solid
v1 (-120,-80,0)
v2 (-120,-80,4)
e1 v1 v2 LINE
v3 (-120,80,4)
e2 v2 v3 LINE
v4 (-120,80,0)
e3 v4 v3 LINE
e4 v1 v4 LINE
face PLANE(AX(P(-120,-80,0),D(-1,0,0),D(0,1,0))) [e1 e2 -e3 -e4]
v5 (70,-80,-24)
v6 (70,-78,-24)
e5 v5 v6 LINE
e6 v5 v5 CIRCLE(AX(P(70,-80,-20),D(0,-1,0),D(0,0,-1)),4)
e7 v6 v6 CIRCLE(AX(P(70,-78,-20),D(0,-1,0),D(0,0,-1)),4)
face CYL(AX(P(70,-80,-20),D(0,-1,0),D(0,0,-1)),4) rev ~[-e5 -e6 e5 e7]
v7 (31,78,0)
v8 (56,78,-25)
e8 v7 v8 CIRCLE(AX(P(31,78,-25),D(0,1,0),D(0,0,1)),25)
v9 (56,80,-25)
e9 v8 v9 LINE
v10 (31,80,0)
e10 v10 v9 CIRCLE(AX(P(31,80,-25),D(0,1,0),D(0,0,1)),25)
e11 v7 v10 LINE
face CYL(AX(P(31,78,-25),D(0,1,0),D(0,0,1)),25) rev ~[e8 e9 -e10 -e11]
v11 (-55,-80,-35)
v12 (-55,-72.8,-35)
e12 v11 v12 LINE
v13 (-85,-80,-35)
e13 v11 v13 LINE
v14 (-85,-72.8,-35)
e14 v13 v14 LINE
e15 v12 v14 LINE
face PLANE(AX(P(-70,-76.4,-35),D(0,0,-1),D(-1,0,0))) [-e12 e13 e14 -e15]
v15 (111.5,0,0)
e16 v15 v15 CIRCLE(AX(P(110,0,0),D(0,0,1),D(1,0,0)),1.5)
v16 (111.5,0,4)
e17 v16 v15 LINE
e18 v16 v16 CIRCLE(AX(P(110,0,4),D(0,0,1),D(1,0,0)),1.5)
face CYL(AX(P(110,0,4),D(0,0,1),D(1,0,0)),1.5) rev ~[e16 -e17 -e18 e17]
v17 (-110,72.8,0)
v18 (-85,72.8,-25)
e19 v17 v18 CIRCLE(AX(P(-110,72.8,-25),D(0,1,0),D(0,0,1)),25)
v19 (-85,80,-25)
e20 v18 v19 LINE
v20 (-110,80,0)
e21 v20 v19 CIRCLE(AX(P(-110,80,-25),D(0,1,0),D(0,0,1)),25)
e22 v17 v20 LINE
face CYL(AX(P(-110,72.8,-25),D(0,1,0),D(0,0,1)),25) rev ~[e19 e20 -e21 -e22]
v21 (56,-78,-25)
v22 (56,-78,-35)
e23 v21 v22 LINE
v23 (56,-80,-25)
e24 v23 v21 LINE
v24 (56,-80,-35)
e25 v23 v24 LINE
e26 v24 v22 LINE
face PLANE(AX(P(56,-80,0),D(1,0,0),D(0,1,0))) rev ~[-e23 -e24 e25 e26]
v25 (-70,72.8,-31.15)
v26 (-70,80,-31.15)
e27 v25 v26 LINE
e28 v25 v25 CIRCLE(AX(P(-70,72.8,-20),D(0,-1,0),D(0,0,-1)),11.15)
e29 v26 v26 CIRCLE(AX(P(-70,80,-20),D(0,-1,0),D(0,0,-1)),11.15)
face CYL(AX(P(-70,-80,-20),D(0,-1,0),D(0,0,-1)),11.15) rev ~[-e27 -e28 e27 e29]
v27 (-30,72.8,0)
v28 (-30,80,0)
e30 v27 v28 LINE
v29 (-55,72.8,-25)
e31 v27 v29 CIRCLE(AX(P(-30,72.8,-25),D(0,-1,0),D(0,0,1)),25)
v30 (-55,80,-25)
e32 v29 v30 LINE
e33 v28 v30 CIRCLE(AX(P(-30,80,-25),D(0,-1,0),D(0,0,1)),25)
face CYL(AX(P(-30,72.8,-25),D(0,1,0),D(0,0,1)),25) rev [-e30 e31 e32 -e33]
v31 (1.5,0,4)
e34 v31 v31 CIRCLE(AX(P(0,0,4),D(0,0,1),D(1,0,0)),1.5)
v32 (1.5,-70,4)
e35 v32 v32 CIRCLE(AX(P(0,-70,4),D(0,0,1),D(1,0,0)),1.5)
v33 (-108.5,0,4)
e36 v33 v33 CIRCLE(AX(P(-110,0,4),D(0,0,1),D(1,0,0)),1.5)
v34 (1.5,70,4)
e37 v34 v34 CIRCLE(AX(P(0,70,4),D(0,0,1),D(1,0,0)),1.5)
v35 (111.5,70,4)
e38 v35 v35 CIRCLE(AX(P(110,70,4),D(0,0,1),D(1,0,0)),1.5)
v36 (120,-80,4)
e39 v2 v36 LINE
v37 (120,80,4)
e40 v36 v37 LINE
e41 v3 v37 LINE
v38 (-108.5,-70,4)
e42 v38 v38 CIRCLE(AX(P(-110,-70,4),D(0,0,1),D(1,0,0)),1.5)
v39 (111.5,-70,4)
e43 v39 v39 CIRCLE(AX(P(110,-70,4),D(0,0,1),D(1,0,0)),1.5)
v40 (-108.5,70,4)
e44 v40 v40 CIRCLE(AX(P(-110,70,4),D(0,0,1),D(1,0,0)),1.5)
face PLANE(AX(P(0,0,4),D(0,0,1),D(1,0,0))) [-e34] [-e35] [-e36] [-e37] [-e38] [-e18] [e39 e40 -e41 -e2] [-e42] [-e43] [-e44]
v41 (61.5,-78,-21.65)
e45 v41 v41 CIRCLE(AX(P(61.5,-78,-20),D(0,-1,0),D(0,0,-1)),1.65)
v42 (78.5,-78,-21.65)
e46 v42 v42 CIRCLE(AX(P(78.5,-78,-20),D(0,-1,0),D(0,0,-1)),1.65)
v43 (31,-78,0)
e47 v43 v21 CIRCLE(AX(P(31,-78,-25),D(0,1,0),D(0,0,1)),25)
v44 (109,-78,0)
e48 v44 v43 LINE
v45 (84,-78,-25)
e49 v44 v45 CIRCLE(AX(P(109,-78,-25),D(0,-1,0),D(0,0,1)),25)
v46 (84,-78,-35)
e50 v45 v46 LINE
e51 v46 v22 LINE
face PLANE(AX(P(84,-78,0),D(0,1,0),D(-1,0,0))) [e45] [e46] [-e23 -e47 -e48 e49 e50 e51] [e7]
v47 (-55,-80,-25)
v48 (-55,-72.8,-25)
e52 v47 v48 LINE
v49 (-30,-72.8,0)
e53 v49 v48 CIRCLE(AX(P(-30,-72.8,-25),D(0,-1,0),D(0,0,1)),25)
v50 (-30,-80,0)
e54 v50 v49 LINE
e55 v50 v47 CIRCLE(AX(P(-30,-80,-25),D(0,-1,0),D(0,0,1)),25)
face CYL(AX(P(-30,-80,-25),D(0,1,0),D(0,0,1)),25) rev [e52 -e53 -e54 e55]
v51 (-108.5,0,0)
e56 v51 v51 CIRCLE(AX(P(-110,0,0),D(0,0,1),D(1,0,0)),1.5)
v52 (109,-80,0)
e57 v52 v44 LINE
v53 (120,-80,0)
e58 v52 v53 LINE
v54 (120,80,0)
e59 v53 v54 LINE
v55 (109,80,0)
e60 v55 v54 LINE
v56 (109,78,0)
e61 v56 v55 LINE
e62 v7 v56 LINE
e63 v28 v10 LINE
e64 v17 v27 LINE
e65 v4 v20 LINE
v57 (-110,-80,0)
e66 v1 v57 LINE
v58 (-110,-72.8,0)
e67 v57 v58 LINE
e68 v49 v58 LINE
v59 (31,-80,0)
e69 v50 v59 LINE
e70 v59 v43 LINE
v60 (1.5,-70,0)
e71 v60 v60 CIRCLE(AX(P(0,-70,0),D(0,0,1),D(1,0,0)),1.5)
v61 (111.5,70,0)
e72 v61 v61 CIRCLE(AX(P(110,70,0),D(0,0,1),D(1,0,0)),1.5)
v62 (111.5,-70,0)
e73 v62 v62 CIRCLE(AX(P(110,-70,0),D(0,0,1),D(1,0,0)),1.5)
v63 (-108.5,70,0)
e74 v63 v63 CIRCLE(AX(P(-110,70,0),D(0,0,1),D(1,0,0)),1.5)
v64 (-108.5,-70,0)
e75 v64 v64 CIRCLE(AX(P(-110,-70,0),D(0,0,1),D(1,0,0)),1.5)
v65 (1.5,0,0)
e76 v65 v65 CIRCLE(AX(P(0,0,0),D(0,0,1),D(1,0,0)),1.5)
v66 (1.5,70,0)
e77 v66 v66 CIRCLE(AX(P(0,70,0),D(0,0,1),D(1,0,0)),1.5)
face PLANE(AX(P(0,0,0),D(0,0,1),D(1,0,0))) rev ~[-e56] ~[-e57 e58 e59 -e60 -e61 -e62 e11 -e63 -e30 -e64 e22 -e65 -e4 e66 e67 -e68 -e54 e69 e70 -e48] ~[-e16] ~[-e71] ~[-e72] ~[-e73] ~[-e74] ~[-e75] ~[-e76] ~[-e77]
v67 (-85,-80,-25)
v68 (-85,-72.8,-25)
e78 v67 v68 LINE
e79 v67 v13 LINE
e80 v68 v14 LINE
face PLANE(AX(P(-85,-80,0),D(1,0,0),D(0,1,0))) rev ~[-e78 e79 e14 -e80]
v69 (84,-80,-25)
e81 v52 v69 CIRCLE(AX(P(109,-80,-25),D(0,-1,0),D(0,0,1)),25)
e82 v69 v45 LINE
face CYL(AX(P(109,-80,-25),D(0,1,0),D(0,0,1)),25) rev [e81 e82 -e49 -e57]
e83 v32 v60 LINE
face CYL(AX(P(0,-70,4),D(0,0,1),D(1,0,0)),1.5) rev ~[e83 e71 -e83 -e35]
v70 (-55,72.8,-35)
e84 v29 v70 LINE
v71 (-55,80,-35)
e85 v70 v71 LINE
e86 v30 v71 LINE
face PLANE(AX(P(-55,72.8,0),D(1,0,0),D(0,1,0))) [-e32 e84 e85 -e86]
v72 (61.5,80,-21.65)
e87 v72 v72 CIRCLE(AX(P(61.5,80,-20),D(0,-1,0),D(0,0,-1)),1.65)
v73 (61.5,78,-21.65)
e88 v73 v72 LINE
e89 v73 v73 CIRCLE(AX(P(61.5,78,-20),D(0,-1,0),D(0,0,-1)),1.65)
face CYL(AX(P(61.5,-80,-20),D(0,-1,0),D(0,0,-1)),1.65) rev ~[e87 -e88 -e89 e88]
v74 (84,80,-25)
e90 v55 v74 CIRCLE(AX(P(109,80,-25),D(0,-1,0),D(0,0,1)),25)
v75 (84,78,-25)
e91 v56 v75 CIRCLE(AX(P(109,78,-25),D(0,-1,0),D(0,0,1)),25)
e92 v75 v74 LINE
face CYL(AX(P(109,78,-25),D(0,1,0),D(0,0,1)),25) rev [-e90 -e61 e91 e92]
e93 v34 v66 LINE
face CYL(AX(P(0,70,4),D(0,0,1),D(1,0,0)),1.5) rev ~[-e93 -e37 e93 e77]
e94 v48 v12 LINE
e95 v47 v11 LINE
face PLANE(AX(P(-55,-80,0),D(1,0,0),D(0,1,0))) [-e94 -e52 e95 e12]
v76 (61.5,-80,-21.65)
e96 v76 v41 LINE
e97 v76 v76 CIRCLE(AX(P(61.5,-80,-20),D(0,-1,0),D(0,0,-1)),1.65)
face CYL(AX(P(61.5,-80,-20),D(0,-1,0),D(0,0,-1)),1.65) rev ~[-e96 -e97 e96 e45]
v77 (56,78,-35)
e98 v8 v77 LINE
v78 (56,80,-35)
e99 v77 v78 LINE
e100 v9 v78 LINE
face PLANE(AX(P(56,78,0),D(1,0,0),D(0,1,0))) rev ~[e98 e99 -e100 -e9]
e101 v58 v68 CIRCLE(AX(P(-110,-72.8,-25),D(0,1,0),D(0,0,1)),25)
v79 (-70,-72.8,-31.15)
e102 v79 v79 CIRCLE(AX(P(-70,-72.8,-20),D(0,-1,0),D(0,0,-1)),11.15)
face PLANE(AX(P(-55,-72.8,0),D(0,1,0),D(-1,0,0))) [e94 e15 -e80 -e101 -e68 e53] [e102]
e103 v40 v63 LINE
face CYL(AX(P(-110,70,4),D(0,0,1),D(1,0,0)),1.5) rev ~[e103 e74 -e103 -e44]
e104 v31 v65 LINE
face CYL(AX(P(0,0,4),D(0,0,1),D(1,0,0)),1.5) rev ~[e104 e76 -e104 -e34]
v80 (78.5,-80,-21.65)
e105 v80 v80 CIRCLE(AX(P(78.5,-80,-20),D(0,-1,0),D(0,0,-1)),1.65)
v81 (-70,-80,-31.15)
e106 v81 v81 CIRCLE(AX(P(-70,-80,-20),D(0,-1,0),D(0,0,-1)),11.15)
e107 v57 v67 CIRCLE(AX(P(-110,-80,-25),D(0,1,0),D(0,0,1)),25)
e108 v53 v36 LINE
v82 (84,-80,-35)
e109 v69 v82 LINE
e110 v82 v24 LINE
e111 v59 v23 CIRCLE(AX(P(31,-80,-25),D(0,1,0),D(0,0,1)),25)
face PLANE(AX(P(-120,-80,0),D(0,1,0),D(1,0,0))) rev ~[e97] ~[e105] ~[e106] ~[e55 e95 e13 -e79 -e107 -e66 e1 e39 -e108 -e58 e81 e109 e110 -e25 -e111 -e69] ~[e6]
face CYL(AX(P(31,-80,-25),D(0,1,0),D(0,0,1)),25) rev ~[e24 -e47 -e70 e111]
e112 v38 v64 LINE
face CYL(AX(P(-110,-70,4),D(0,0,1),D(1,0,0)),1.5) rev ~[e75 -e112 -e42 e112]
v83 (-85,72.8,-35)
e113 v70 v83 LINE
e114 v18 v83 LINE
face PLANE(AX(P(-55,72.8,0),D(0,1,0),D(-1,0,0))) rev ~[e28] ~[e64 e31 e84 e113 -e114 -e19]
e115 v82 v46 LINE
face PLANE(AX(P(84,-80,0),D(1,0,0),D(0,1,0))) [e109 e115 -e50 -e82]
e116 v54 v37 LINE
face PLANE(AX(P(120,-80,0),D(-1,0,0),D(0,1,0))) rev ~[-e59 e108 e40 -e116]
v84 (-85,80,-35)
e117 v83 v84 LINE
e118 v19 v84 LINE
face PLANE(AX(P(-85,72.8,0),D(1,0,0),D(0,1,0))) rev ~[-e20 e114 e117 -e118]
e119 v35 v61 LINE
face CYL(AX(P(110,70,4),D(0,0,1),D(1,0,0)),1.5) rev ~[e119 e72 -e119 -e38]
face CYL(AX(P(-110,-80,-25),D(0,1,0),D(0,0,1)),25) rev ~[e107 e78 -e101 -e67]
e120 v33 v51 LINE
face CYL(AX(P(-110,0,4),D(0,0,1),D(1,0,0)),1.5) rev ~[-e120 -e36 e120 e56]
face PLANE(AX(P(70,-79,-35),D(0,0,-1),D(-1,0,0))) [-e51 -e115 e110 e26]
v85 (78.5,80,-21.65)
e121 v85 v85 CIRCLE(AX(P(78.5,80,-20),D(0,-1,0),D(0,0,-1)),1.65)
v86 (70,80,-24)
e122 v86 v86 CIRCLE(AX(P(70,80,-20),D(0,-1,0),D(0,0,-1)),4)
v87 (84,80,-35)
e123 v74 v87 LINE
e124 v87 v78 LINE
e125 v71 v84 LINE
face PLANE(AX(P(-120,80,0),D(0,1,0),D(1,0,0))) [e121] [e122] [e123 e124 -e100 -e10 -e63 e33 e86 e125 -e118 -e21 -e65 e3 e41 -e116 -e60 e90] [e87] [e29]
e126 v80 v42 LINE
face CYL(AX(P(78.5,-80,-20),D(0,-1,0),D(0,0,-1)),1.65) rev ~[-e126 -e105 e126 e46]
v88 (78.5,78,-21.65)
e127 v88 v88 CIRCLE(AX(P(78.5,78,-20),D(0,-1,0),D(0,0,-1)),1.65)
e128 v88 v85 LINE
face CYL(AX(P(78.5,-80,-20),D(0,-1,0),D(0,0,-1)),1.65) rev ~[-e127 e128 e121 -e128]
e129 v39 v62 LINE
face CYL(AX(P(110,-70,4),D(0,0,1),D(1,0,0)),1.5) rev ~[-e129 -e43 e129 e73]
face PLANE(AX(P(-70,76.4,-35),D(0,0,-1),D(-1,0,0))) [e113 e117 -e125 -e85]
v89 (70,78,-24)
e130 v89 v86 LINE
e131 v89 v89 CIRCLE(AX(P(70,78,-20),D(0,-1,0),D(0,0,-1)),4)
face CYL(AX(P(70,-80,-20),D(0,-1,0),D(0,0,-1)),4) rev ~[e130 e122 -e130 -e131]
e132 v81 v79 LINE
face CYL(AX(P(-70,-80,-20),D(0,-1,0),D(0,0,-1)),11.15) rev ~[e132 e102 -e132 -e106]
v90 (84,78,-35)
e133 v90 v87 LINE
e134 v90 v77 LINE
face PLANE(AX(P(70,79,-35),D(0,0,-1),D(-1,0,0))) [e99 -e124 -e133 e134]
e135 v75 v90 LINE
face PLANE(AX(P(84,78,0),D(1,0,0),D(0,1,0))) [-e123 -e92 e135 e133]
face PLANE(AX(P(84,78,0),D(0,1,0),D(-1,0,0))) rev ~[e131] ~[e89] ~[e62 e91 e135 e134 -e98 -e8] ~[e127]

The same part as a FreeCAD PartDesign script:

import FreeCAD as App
import Part
import Sketcher


def edges_at(feature, points):
    """Names of the edges that pass closest to the given points."""
    edges = feature.Shape.Edges
    near = lambda p: min(range(len(edges)), key=lambda i: edges[i].distToShape(Part.Vertex(*p))[0])
    return sorted({f"Edge{near(p) + 1}" for p in points})

doc = App.newDocument("Part")
body = doc.addObject("PartDesign::Body", "Body")

sketch1 = body.newObject("Sketcher::SketchObject", "Sketch")
sketch1.AttachmentSupport = (doc.getObject("XY_Plane"), [""])
sketch1.MapMode = "FlatFace"
sketch1.addGeometry(Part.LineSegment(App.Vector(-120, 80, 0), App.Vector(-120, -80, 0)), False)
sketch1.addGeometry(Part.LineSegment(App.Vector(-120, -80, 0), App.Vector(120, -80, 0)), False)
sketch1.addGeometry(Part.LineSegment(App.Vector(120, -80, 0), App.Vector(120, 80, 0)), False)
sketch1.addGeometry(Part.LineSegment(App.Vector(120, 80, 0), App.Vector(-120, 80, 0)), False)
sketch1.addConstraint(Sketcher.Constraint("Coincident", 0, 2, 1, 1))
sketch1.addConstraint(Sketcher.Constraint("Coincident", 1, 2, 2, 1))
sketch1.addConstraint(Sketcher.Constraint("Coincident", 2, 2, 3, 1))
sketch1.addConstraint(Sketcher.Constraint("Coincident", 3, 2, 0, 1))
sketch1.addConstraint(Sketcher.Constraint("Vertical", 0))
sketch1.addConstraint(Sketcher.Constraint("Horizontal", 1))
sketch1.addConstraint(Sketcher.Constraint("Vertical", 2))
sketch1.addConstraint(Sketcher.Constraint("Horizontal", 3))
sketch1.addConstraint(Sketcher.Constraint("Symmetric", 0, 2, 2, 2, -1, 1))
sketch1.addConstraint(Sketcher.Constraint("DistanceX", 1, 1, 1, 2, 240.0))
sketch1.addConstraint(Sketcher.Constraint("DistanceY", 0, 2, 0, 1, 160.0))
pad1 = body.newObject("PartDesign::Pad", "Pad")
pad1.Profile = sketch1
pad1.Length = 4

sketch2 = body.newObject("Sketcher::SketchObject", "Sketch001")
sketch2.AttachmentSupport = (doc.getObject("XY_Plane"), [""])
sketch2.MapMode = "FlatFace"
sketch2.addGeometry(Part.LineSegment(App.Vector(84, 80, 0), App.Vector(84, 78, 0)), False)
sketch2.addGeometry(Part.LineSegment(App.Vector(84, 78, 0), App.Vector(56, 78, 0)), False)
sketch2.addGeometry(Part.LineSegment(App.Vector(56, 78, 0), App.Vector(56, 80, 0)), False)
sketch2.addGeometry(Part.LineSegment(App.Vector(56, 80, 0), App.Vector(84, 80, 0)), False)
sketch2.addGeometry(Part.LineSegment(App.Vector(84, -78, 0), App.Vector(84, -80, 0)), False)
sketch2.addGeometry(Part.LineSegment(App.Vector(84, -80, 0), App.Vector(56, -80, 0)), False)
sketch2.addGeometry(Part.LineSegment(App.Vector(56, -80, 0), App.Vector(56, -78, 0)), False)
sketch2.addGeometry(Part.LineSegment(App.Vector(56, -78, 0), App.Vector(84, -78, 0)), False)
sketch2.addGeometry(Part.LineSegment(App.Vector(-55, -72.8, 0), App.Vector(-55, -80, 0)), False)
sketch2.addGeometry(Part.LineSegment(App.Vector(-55, -80, 0), App.Vector(-85, -80, 0)), False)
sketch2.addGeometry(Part.LineSegment(App.Vector(-85, -80, 0), App.Vector(-85, -72.8, 0)), False)
sketch2.addGeometry(Part.LineSegment(App.Vector(-85, -72.8, 0), App.Vector(-55, -72.8, 0)), False)
sketch2.addGeometry(Part.LineSegment(App.Vector(-55, 80, 0), App.Vector(-55, 72.8, 0)), False)
sketch2.addGeometry(Part.LineSegment(App.Vector(-55, 72.8, 0), App.Vector(-85, 72.8, 0)), False)
sketch2.addGeometry(Part.LineSegment(App.Vector(-85, 72.8, 0), App.Vector(-85, 80, 0)), False)
sketch2.addGeometry(Part.LineSegment(App.Vector(-85, 80, 0), App.Vector(-55, 80, 0)), False)
sketch2.addConstraint(Sketcher.Constraint("Coincident", 0, 2, 1, 1))
sketch2.addConstraint(Sketcher.Constraint("Coincident", 1, 2, 2, 1))
sketch2.addConstraint(Sketcher.Constraint("Coincident", 2, 2, 3, 1))
sketch2.addConstraint(Sketcher.Constraint("Coincident", 3, 2, 0, 1))
sketch2.addConstraint(Sketcher.Constraint("Coincident", 4, 2, 5, 1))
sketch2.addConstraint(Sketcher.Constraint("Coincident", 5, 2, 6, 1))
sketch2.addConstraint(Sketcher.Constraint("Coincident", 6, 2, 7, 1))
sketch2.addConstraint(Sketcher.Constraint("Coincident", 7, 2, 4, 1))
sketch2.addConstraint(Sketcher.Constraint("Coincident", 8, 2, 9, 1))
sketch2.addConstraint(Sketcher.Constraint("Coincident", 9, 2, 10, 1))
sketch2.addConstraint(Sketcher.Constraint("Coincident", 10, 2, 11, 1))
sketch2.addConstraint(Sketcher.Constraint("Coincident", 11, 2, 8, 1))
sketch2.addConstraint(Sketcher.Constraint("Coincident", 12, 2, 13, 1))
sketch2.addConstraint(Sketcher.Constraint("Coincident", 13, 2, 14, 1))
sketch2.addConstraint(Sketcher.Constraint("Coincident", 14, 2, 15, 1))
sketch2.addConstraint(Sketcher.Constraint("Coincident", 15, 2, 12, 1))
sketch2.addConstraint(Sketcher.Constraint("Vertical", 0))
sketch2.addConstraint(Sketcher.Constraint("Horizontal", 1))
sketch2.addConstraint(Sketcher.Constraint("Vertical", 2))
sketch2.addConstraint(Sketcher.Constraint("Horizontal", 3))
sketch2.addConstraint(Sketcher.Constraint("Vertical", 4))
sketch2.addConstraint(Sketcher.Constraint("Horizontal", 5))
sketch2.addConstraint(Sketcher.Constraint("Vertical", 6))
sketch2.addConstraint(Sketcher.Constraint("Horizontal", 7))
sketch2.addConstraint(Sketcher.Constraint("Vertical", 8))
sketch2.addConstraint(Sketcher.Constraint("Horizontal", 9))
sketch2.addConstraint(Sketcher.Constraint("Vertical", 10))
sketch2.addConstraint(Sketcher.Constraint("Horizontal", 11))
sketch2.addConstraint(Sketcher.Constraint("Vertical", 12))
sketch2.addConstraint(Sketcher.Constraint("Horizontal", 13))
sketch2.addConstraint(Sketcher.Constraint("Vertical", 14))
sketch2.addConstraint(Sketcher.Constraint("Horizontal", 15))
sketch2.addConstraint(Sketcher.Constraint("Symmetric", 3, 2, 4, 2, -1))
sketch2.addConstraint(Sketcher.Constraint("Symmetric", 1, 2, 6, 2, -1))
sketch2.addConstraint(Sketcher.Constraint("Symmetric", 11, 2, 12, 2, -1))
sketch2.addConstraint(Sketcher.Constraint("Symmetric", 9, 2, 14, 2, -1))
sketch2.addConstraint(Sketcher.Constraint("Horizontal", 5, 2, 8, 2))
sketch2.addConstraint(Sketcher.Constraint("DistanceX", 1, 2, 1, 1, 28.0))
sketch2.addConstraint(Sketcher.Constraint("DistanceX", 9, 2, 9, 1, 30.0))
sketch2.addConstraint(Sketcher.Constraint("DistanceY", 0, 2, 0, 1, 2.0))
sketch2.addConstraint(Sketcher.Constraint("DistanceY", 8, 2, 8, 1, 7.2))
sketch2.addConstraint(Sketcher.Constraint("DistanceX", -1, 1, 0, 2, 84.0))
sketch2.addConstraint(Sketcher.Constraint("DistanceY", -1, 1, 0, 2, 78.0))
sketch2.addConstraint(Sketcher.Constraint("DistanceX", 8, 2, -1, 1, 55.0))
pad2 = body.newObject("PartDesign::Pad", "Pad001")
pad2.Profile = sketch2
pad2.Length = 35
pad2.Reversed = True

sketch3 = body.newObject("Sketcher::SketchObject", "Sketch002")
sketch3.AttachmentSupport = (doc.getObject("XZ_Plane"), [""])
sketch3.MapMode = "FlatFace"
sketch3.AttachmentOffset = App.Placement(App.Vector(0, 0, 80), App.Rotation())
sketch3.addGeometry(Part.Circle(App.Vector(78.5, -20, 0), App.Vector(0, 0, 1), 1.6), False)
sketch3.addGeometry(Part.Circle(App.Vector(61.5, -20, 0), App.Vector(0, 0, 1), 1.6), False)
sketch3.addGeometry(Part.Circle(App.Vector(70, -20, 0), App.Vector(0, 0, 1), 4), False)
sketch3.addGeometry(Part.Circle(App.Vector(-70, -20, 0), App.Vector(0, 0, 1), 11.2), False)
sketch3.addConstraint(Sketcher.Constraint("Equal", 0, 1))
sketch3.addConstraint(Sketcher.Constraint("Symmetric", 2, 3, 3, 3, -2))
sketch3.addConstraint(Sketcher.Constraint("Horizontal", 0, 3, 1, 3))
sketch3.addConstraint(Sketcher.Constraint("Horizontal", 1, 3, 2, 3))
sketch3.addConstraint(Sketcher.Constraint("Diameter", 2, 8.0))
sketch3.addConstraint(Sketcher.Constraint("Diameter", 0, 3.3))
sketch3.addConstraint(Sketcher.Constraint("Diameter", 3, 22.3))
sketch3.addConstraint(Sketcher.Constraint("DistanceY", 0, 3, -1, 1, 20.0))
sketch3.addConstraint(Sketcher.Constraint("DistanceX", -1, 1, 2, 3, 70.0))
sketch3.addConstraint(Sketcher.Constraint("DistanceX", 1, 3, 0, 3, 17.0))
sketch3.addConstraint(Sketcher.Constraint("DistanceX", -1, 1, 0, 3, 78.5))
pocket1 = body.newObject("PartDesign::Pocket", "Pocket")
pocket1.Profile = sketch3
pocket1.Length = 170

sketch4 = body.newObject("Sketcher::SketchObject", "Sketch003")
sketch4.AttachmentSupport = (doc.getObject("XY_Plane"), [""])
sketch4.MapMode = "FlatFace"
sketch4.AttachmentOffset = App.Placement(App.Vector(0, 0, 4), App.Rotation())
sketch4.addGeometry(Part.Circle(App.Vector(-110, 70, 0), App.Vector(0, 0, 1), 1.5), False)
sketch4.addGeometry(Part.Circle(App.Vector(0, 70, 0), App.Vector(0, 0, 1), 1.5), False)
sketch4.addGeometry(Part.Circle(App.Vector(110, 70, 0), App.Vector(0, 0, 1), 1.5), False)
sketch4.addGeometry(Part.Circle(App.Vector(0, 0, 0), App.Vector(0, 0, 1), 1.5), False)
sketch4.addGeometry(Part.Circle(App.Vector(110, 0, 0), App.Vector(0, 0, 1), 1.5), False)
sketch4.addGeometry(Part.Circle(App.Vector(0, -70, 0), App.Vector(0, 0, 1), 1.5), False)
sketch4.addGeometry(Part.Circle(App.Vector(110, -70, 0), App.Vector(0, 0, 1), 1.5), False)
sketch4.addGeometry(Part.Circle(App.Vector(-110, 0, 0), App.Vector(0, 0, 1), 1.5), False)
sketch4.addGeometry(Part.Circle(App.Vector(-110, -70, 0), App.Vector(0, 0, 1), 1.5), False)
sketch4.addConstraint(Sketcher.Constraint("Coincident", 3, 3, -1, 1))
sketch4.addConstraint(Sketcher.Constraint("Equal", 0, 1))
sketch4.addConstraint(Sketcher.Constraint("Equal", 1, 2))
sketch4.addConstraint(Sketcher.Constraint("Equal", 2, 3))
sketch4.addConstraint(Sketcher.Constraint("Equal", 3, 4))
sketch4.addConstraint(Sketcher.Constraint("Equal", 4, 5))
sketch4.addConstraint(Sketcher.Constraint("Equal", 5, 6))
sketch4.addConstraint(Sketcher.Constraint("Equal", 6, 7))
sketch4.addConstraint(Sketcher.Constraint("Equal", 7, 8))
sketch4.addConstraint(Sketcher.Constraint("Symmetric", 1, 3, 5, 3, -1, 1))
sketch4.addConstraint(Sketcher.Constraint("Symmetric", 0, 3, 6, 3, -1, 1))
sketch4.addConstraint(Sketcher.Constraint("Symmetric", 4, 3, 7, 3, -1, 1))
sketch4.addConstraint(Sketcher.Constraint("Symmetric", 2, 3, 8, 3, -1, 1))
sketch4.addConstraint(Sketcher.Constraint("Symmetric", 0, 3, 2, 3, -2))
sketch4.addConstraint(Sketcher.Constraint("PointOnObject", 1, 3, -2))
sketch4.addConstraint(Sketcher.Constraint("PointOnObject", 4, 3, -1))
sketch4.addConstraint(Sketcher.Constraint("Horizontal", 0, 3, 1, 3))
sketch4.addConstraint(Sketcher.Constraint("Vertical", 2, 3, 4, 3))
sketch4.addConstraint(Sketcher.Constraint("Diameter", 0, 3.0))
sketch4.addConstraint(Sketcher.Constraint("DistanceX", 0, 3, -1, 1, 110.0))
sketch4.addConstraint(Sketcher.Constraint("DistanceY", -1, 1, 0, 3, 70.0))
pocket2 = body.newObject("PartDesign::Pocket", "Pocket001")
pocket2.Profile = sketch4
pocket2.Length = 4
doc.recompute()

fillet = body.newObject("PartDesign::Fillet", "Fillet")
fillet.Base = (pocket2, edges_at(pocket2, [
    (56, -79, 0),
    (84, -79, 0),
    (-85, -76.4, 0),
    (-55, -76.4, 0),
    (-55, 76.4, 0),
    (-85, 76.4, 0),
    (84, 79, 0),
    (56, 79, 0),
]))
fillet.Radius = 25

doc.recompute()
